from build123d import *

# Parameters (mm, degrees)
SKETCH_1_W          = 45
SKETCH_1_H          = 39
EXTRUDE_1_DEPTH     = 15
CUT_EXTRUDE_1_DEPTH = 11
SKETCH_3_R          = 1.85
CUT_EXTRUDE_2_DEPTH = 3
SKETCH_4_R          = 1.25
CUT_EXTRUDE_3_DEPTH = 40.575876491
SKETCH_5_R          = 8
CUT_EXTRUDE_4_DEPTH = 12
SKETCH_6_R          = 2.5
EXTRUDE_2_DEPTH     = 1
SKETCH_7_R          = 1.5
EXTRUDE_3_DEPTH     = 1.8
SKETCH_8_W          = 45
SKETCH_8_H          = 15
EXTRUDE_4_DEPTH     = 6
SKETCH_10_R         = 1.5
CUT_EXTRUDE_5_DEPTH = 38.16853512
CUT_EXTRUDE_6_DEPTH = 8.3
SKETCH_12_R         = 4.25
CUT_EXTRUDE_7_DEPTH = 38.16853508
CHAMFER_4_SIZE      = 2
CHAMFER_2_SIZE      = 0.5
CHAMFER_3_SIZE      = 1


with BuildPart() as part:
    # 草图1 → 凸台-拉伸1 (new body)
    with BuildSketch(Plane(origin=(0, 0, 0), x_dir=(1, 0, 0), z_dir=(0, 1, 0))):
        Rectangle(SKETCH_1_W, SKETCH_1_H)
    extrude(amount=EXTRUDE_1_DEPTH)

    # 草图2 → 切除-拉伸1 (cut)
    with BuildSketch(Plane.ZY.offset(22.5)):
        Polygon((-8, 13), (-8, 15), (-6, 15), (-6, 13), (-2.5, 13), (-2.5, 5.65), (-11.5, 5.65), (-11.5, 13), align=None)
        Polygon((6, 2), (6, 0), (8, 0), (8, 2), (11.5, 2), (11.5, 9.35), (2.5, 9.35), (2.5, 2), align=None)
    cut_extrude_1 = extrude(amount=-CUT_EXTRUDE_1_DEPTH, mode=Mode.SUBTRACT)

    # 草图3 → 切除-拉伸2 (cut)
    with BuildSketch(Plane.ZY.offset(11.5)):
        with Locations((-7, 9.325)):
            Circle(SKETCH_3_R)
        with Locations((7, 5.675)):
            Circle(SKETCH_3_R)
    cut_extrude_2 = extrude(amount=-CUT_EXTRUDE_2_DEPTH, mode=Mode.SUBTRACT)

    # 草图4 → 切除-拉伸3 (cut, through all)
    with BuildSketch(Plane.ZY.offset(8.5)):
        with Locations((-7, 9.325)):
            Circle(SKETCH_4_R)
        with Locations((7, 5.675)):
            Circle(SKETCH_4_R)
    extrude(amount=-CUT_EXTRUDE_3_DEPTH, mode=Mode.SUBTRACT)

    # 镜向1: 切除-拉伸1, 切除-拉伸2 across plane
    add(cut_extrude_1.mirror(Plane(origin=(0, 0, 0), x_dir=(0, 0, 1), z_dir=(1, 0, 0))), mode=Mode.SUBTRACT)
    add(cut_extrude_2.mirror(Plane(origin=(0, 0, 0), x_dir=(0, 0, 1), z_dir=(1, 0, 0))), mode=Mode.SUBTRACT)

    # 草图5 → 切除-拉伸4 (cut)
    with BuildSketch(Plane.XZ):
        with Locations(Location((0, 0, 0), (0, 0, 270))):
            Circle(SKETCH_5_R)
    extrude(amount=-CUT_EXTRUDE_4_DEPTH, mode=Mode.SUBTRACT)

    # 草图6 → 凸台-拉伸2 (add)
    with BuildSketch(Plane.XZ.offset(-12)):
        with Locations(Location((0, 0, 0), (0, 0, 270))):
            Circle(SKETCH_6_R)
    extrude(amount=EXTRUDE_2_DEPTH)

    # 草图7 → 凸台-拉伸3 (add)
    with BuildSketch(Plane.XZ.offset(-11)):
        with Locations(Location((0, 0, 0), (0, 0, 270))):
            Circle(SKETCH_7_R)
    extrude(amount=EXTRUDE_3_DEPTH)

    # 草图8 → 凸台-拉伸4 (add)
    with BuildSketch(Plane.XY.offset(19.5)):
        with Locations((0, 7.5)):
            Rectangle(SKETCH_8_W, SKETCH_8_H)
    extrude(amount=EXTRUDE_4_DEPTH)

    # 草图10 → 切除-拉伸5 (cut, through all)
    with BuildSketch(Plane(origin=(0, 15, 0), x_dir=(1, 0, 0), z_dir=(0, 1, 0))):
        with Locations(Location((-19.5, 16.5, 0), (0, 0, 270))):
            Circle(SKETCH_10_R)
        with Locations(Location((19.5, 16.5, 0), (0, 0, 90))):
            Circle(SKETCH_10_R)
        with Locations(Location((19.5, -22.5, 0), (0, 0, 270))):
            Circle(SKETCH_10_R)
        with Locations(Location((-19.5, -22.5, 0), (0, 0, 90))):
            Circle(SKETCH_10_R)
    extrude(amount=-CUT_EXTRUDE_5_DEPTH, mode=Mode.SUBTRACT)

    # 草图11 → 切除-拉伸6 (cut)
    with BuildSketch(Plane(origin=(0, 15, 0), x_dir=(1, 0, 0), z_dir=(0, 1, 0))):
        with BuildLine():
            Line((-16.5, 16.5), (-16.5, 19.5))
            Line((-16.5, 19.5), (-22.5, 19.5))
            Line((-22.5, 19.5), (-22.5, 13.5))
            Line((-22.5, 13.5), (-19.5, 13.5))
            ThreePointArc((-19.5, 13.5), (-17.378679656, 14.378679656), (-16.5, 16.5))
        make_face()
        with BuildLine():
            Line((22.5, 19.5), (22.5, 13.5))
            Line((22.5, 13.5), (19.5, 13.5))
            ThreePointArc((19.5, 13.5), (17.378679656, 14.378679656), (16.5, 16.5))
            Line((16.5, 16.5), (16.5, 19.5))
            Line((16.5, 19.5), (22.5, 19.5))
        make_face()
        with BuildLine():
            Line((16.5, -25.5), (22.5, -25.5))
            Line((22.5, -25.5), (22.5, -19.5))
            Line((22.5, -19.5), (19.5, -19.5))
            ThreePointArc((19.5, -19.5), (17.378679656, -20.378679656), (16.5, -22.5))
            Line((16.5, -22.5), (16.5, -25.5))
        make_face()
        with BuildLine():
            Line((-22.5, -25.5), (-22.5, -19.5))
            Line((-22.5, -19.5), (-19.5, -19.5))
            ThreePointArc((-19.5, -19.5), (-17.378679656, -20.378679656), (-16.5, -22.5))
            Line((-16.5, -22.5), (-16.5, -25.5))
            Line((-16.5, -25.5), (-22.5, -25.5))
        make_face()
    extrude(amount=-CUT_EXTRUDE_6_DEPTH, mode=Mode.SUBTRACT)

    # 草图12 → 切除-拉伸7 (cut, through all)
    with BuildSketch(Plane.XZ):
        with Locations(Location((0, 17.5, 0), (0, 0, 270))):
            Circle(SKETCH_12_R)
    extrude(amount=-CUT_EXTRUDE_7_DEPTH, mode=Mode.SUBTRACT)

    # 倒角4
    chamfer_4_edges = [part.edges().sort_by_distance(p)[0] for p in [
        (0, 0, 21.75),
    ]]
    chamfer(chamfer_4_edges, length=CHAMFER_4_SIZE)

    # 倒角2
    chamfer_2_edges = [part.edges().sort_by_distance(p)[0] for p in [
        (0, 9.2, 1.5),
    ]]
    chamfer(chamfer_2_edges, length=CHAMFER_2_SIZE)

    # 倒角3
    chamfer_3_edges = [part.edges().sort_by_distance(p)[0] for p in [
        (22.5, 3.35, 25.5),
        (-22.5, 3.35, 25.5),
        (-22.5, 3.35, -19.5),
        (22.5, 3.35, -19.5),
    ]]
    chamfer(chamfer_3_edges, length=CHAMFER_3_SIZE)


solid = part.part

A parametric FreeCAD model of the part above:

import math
import FreeCAD as App
import Part
import Sketcher

V = App.Vector


def edges_at(feature, points):
    """Names of the edges that pass closest to the given points."""
    edges = feature.Shape.Edges
    near = lambda p: min(range(len(edges)), key=lambda i: edges[i].distToShape(Part.Vertex(*p))[0])
    return sorted({f"Edge{near(p) + 1}" for p in points})

doc = App.newDocument("Part")
body = doc.addObject("PartDesign::Body", "Body")

# Sketch on XZ plane
sketch1 = body.newObject("Sketcher::SketchObject", "Sketch")
sketch1.AttachmentSupport = (doc.getObject("XZ_Plane"), [""])
sketch1.MapMode = "FlatFace"
sketch1.addGeometry(Part.LineSegment(V(-22, -20, 0), V(-22, 20, 0)), False)
sketch1.addGeometry(Part.LineSegment(V(-22, 20, 0), V(22, 20, 0)), False)
sketch1.addGeometry(Part.LineSegment(V(22, 20, 0), V(22, -20, 0)), False)
sketch1.addGeometry(Part.LineSegment(V(22, -20, 0), V(-22, -20, 0)), False)
sketch1.addConstraint(Sketcher.Constraint("Coincident", 0, 2, 1, 1))
sketch1.addConstraint(Sketcher.Constraint("Coincident", 1, 2, 2, 1))
sketch1.addConstraint(Sketcher.Constraint("Coincident", 2, 2, 3, 1))
sketch1.addConstraint(Sketcher.Constraint("Coincident", 3, 2, 0, 1))
sketch1.addConstraint(Sketcher.Constraint("Vertical", 0))
sketch1.addConstraint(Sketcher.Constraint("Horizontal", 1))
sketch1.addConstraint(Sketcher.Constraint("Vertical", 2))
sketch1.addConstraint(Sketcher.Constraint("Horizontal", 3))
sketch1.addConstraint(Sketcher.Constraint("Symmetric", 0, 2, 2, 2, -1, 1))
sketch1.addConstraint(Sketcher.Constraint("DistanceX", 1, 1, 1, 2, 45.0))
sketch1.addConstraint(Sketcher.Constraint("DistanceY", 0, 1, 0, 2, 39.0))
pad1 = body.newObject("PartDesign::Pad", "Pad")
pad1.Profile = sketch1
pad1.Length = 15
pad1.Reversed = True

# Sketch on YZ plane
sketch2 = body.newObject("Sketcher::SketchObject", "Sketch001")
sketch2.AttachmentSupport = (doc.getObject("YZ_Plane"), [""])
sketch2.MapMode = "FlatFace"
sketch2.AttachmentOffset = App.Placement(V(0, 0, -22.5), App.Rotation())
sketch2.addGeometry(Part.LineSegment(V(15, -8, 0), V(13, -8, 0)), False)
sketch2.addGeometry(Part.LineSegment(V(13, -8, 0), V(13, -11.5, 0)), False)
sketch2.addGeometry(Part.LineSegment(V(13, -11.5, 0), V(5.7, -11.5, 0)), False)
sketch2.addGeometry(Part.LineSegment(V(5.7, -11.5, 0), V(5.7, -2.5, 0)), False)
sketch2.addGeometry(Part.LineSegment(V(5.7, -2.5, 0), V(13, -2.5, 0)), False)
sketch2.addGeometry(Part.LineSegment(V(13, -2.5, 0), V(13, -6, 0)), False)
sketch2.addGeometry(Part.LineSegment(V(13, -6, 0), V(15, -6, 0)), False)
sketch2.addGeometry(Part.LineSegment(V(15, -6, 0), V(15, -8, 0)), False)
sketch2.addGeometry(Part.LineSegment(V(2, 6, 0), V(0, 6, 0)), False)
sketch2.addGeometry(Part.LineSegment(V(0, 6, 0), V(0, 8, 0)), False)
sketch2.addGeometry(Part.LineSegment(V(0, 8, 0), V(2, 8, 0)), False)
sketch2.addGeometry(Part.LineSegment(V(2, 8, 0), V(2, 11.5, 0)), False)
sketch2.addGeometry(Part.LineSegment(V(2, 11.5, 0), V(9.3, 11.5, 0)), False)
sketch2.addGeometry(Part.LineSegment(V(9.3, 11.5, 0), V(9.3, 2.5, 0)), False)
sketch2.addGeometry(Part.LineSegment(V(9.3, 2.5, 0), V(2, 2.5, 0)), False)
sketch2.addGeometry(Part.LineSegment(V(2, 2.5, 0), V(2, 6, 0)), False)
sketch2.addConstraint(Sketcher.Constraint("Coincident", 0, 2, 1, 1))
sketch2.addConstraint(Sketcher.Constraint("Coincident", 1, 2, 2, 1))
sketch2.addConstraint(Sketcher.Constraint("Coincident", 2, 2, 3, 1))
sketch2.addConstraint(Sketcher.Constraint("Coincident", 3, 2, 4, 1))
sketch2.addConstraint(Sketcher.Constraint("Coincident", 4, 2, 5, 1))
sketch2.addConstraint(Sketcher.Constraint("Coincident", 5, 2, 6, 1))
sketch2.addConstraint(Sketcher.Constraint("Coincident", 6, 2, 7, 1))
sketch2.addConstraint(Sketcher.Constraint("Coincident", 7, 2, 0, 1))
sketch2.addConstraint(Sketcher.Constraint("Coincident", 8, 2, 9, 1))
sketch2.addConstraint(Sketcher.Constraint("Coincident", 9, 2, 10, 1))
sketch2.addConstraint(Sketcher.Constraint("Coincident", 10, 2, 11, 1))
sketch2.addConstraint(Sketcher.Constraint("Coincident", 11, 2, 12, 1))
sketch2.addConstraint(Sketcher.Constraint("Coincident", 12, 2, 13, 1))
sketch2.addConstraint(Sketcher.Constraint("Coincident", 13, 2, 14, 1))
sketch2.addConstraint(Sketcher.Constraint("Coincident", 14, 2, 15, 1))
sketch2.addConstraint(Sketcher.Constraint("Coincident", 15, 2, 8, 1))
sketch2.addConstraint(Sketcher.Constraint("Horizontal", 0))
sketch2.addConstraint(Sketcher.Constraint("Vertical", 1))
sketch2.addConstraint(Sketcher.Constraint("Horizontal", 2))
sketch2.addConstraint(Sketcher.Constraint("Vertical", 3))
sketch2.addConstraint(Sketcher.Constraint("Horizontal", 4))
sketch2.addConstraint(Sketcher.Constraint("Vertical", 5))
sketch2.addConstraint(Sketcher.Constraint("Horizontal", 6))
sketch2.addConstraint(Sketcher.Constraint("Vertical", 7))
sketch2.addConstraint(Sketcher.Constraint("Horizontal", 8))
sketch2.addConstraint(Sketcher.Constraint("Vertical", 9))
sketch2.addConstraint(Sketcher.Constraint("Horizontal", 10))
sketch2.addConstraint(Sketcher.Constraint("Vertical", 11))
sketch2.addConstraint(Sketcher.Constraint("Horizontal", 12))
sketch2.addConstraint(Sketcher.Constraint("Vertical", 13))
sketch2.addConstraint(Sketcher.Constraint("Horizontal", 14))
sketch2.addConstraint(Sketcher.Constraint("Vertical", 15))
sketch2.addConstraint(Sketcher.Constraint("PointOnObject", 8, 2, -2))
sketch2.addConstraint(Sketcher.Constraint("Vertical", 1, 2, 4, 2))
sketch2.addConstraint(Sketcher.Constraint("Vertical", 11, 2, 14, 2))
sketch2.addConstraint(Sketcher.Constraint("Equal", 6, 8))
sketch2.addConstraint(Sketcher.Constraint("Equal", 4, 12))
sketch2.addConstraint(Sketcher.Constraint("Equal", 1, 5))
sketch2.addConstraint(Sketcher.Constraint("Equal", 10, 7))
sketch2.addConstraint(Sketcher.Constraint("Equal", 7, 9))
sketch2.addConstraint(Sketcher.Constraint("Equal", 5, 11))
sketch2.addConstraint(Sketcher.Constraint("Equal", 3, 13))
sketch2.addConstraint(Sketcher.Constraint("DistanceX", 0, 2, 0, 1, 2.0))
sketch2.addConstraint(Sketcher.Constraint("DistanceY", 3, 1, 3, 2, 9.0))
sketch2.addConstraint(Sketcher.Constraint("DistanceX", -1, 1, 0, 2, 13.0))
sketch2.addConstraint(Sketcher.Constraint("DistanceY", 0, 2, -1, 1, 8.0))
sketch2.addConstraint(Sketcher.Constraint("DistanceY", -1, 1, 8, 2, 6.0))
sketch2.addConstraint(Sketcher.Constraint("DistanceX", 2, 2, 2, 1, 7.35))
pocket1 = body.newObject("PartDesign::Pocket", "Pocket")
pocket1.Profile = sketch2
pocket1.Length = 11
pocket1.Reversed = True

# Sketch on YZ plane
sketch3 = body.newObject("Sketcher::SketchObject", "Sketch002")
sketch3.AttachmentSupport = (doc.getObject("YZ_Plane"), [""])
sketch3.MapMode = "FlatFace"
sketch3.AttachmentOffset = App.Placement(V(0, 0, -11.5), App.Rotation())
sketch3.addGeometry(Part.Circle(V(9.3, -7, 0), V(0, 0, 1), 1.9), False)
sketch3.addGeometry(Part.Circle(V(5.7, 7, 0), V(0, 0, 1), 1.9), False)
sketch3.addConstraint(Sketcher.Constraint("Equal", 0, 1))
sketch3.addConstraint(Sketcher.Constraint("Diameter", 0, 3.7))
sketch3.addConstraint(Sketcher.Constraint("DistanceY", 0, 3, -1, 1, 7.0))
sketch3.addConstraint(Sketcher.Constraint("DistanceY", -1, 1, 1, 3, 7.0))
sketch3.addConstraint(Sketcher.Constraint("DistanceX", 1, 3, 0, 3, 3.65))
sketch3.addConstraint(Sketcher.Constraint("DistanceX", -1, 1, 0, 3, 9.325))
pocket2 = body.newObject("PartDesign::Pocket", "Pocket001")
pocket2.Profile = sketch3
pocket2.Length = 3
pocket2.Reversed = True

# Sketch on YZ plane
sketch4 = body.newObject("Sketcher::SketchObject", "Sketch003")
sketch4.AttachmentSupport = (doc.getObject("YZ_Plane"), [""])
sketch4.MapMode = "FlatFace"
sketch4.AttachmentOffset = App.Placement(V(0, 0, -8.5), App.Rotation())
sketch4.addGeometry(Part.Circle(V(9.3, -7, 0), V(0, 0, 1), 1.2), False)
sketch4.addGeometry(Part.Circle(V(5.7, 7, 0), V(0, 0, 1), 1.2), False)
sketch4.addConstraint(Sketcher.Constraint("Equal", 0, 1))
sketch4.addConstraint(Sketcher.Constraint("Diameter", 0, 2.5))
sketch4.addConstraint(Sketcher.Constraint("DistanceY", 0, 3, -1, 1, 7.0))
sketch4.addConstraint(Sketcher.Constraint("DistanceY", -1, 1, 1, 3, 7.0))
sketch4.addConstraint(Sketcher.Constraint("DistanceX", 1, 3, 0, 3, 3.65))
sketch4.addConstraint(Sketcher.Constraint("DistanceX", -1, 1, 0, 3, 9.325))
pocket3 = body.newObject("PartDesign::Pocket", "Pocket002")
pocket3.Profile = sketch4
pocket3.Type = "ThroughAll"
pocket3.Reversed = True
doc.recompute()

mirrored = body.newObject("PartDesign::Mirrored", "Mirrored")
mirrored.Originals = [pocket1, pocket2]
mirrored.MirrorPlane = (doc.getObject("YZ_Plane"), [""])
body.Tip = mirrored

# Sketch on XZ plane
sketch5 = body.newObject("Sketcher::SketchObject", "Sketch004")
sketch5.AttachmentSupport = (doc.getObject("XZ_Plane"), [""])
sketch5.MapMode = "FlatFace"
sketch5.addGeometry(Part.Circle(V(0, 0, 0), V(0, 0, 1), 8), False)
sketch5.addConstraint(Sketcher.Constraint("Coincident", 0, 3, -1, 1))
sketch5.addConstraint(Sketcher.Constraint("Diameter", 0, 16.0))
pocket4 = body.newObject("PartDesign::Pocket", "Pocket003")
pocket4.Profile = sketch5
pocket4.Length = 12

# Sketch on XZ plane
sketch6 = body.newObject("Sketcher::SketchObject", "Sketch005")
sketch6.AttachmentSupport = (doc.getObject("XZ_Plane"), [""])
sketch6.MapMode = "FlatFace"
sketch6.AttachmentOffset = App.Placement(V(0, 0, -12), App.Rotation())
sketch6.addGeometry(Part.Circle(V(0, 0, 0), V(0, 0, 1), 2.5), False)
sketch6.addConstraint(Sketcher.Constraint("Coincident", 0, 3, -1, 1))
sketch6.addConstraint(Sketcher.Constraint("Diameter", 0, 5.0))
pad2 = body.newObject("PartDesign::Pad", "Pad001")
pad2.Profile = sketch6
pad2.Length = 1

# Sketch on XZ plane
sketch7 = body.newObject("Sketcher::SketchObject", "Sketch006")
sketch7.AttachmentSupport = (doc.getObject("XZ_Plane"), [""])
sketch7.MapMode = "FlatFace"
sketch7.AttachmentOffset = App.Placement(V(0, 0, -11), App.Rotation())
sketch7.addGeometry(Part.Circle(V(0, 0, 0), V(0, 0, 1), 1.5), False)
sketch7.addConstraint(Sketcher.Constraint("Coincident", 0, 3, -1, 1))
sketch7.addConstraint(Sketcher.Constraint("Diameter", 0, 3.0))
pad3 = body.newObject("PartDesign::Pad", "Pad002")
pad3.Profile = sketch7
pad3.Length = 1.8

# Sketch on XY plane
sketch8 = body.newObject("Sketcher::SketchObject", "Sketch007")
sketch8.AttachmentSupport = (doc.getObject("XY_Plane"), [""])
sketch8.MapMode = "FlatFace"
sketch8.AttachmentOffset = App.Placement(V(0, 0, 19.5), App.Rotation())
sketch8.addGeometry(Part.LineSegment(V(-22, 15, 0), V(-22, 0, 0)), False)
sketch8.addGeometry(Part.LineSegment(V(-22, 0, 0), V(22, 0, 0)), False)
sketch8.addGeometry(Part.LineSegment(V(22, 0, 0), V(22, 15, 0)), False)
sketch8.addGeometry(Part.LineSegment(V(22, 15, 0), V(-22, 15, 0)), False)
sketch8.addConstraint(Sketcher.Constraint("Coincident", 0, 2, 1, 1))
sketch8.addConstraint(Sketcher.Constraint("Coincident", 1, 2, 2, 1))
sketch8.addConstraint(Sketcher.Constraint("Coincident", 2, 2, 3, 1))
sketch8.addConstraint(Sketcher.Constraint("Coincident", 3, 2, 0, 1))
sketch8.addConstraint(Sketcher.Constraint("Vertical", 0))
sketch8.addConstraint(Sketcher.Constraint("Horizontal", 1))
sketch8.addConstraint(Sketcher.Constraint("Vertical", 2))
sketch8.addConstraint(Sketcher.Constraint("Horizontal", 3))
sketch8.addConstraint(Sketcher.Constraint("Symmetric", 0, 2, 1, 2, -1, 1))
sketch8.addConstraint(Sketcher.Constraint("DistanceX", 1, 1, 1, 2, 45.0))
sketch8.addConstraint(Sketcher.Constraint("DistanceY", 0, 2, 0, 1, 15.0))
pad4 = body.newObject("PartDesign::Pad", "Pad003")
pad4.Profile = sketch8
pad4.Length = 6

# Sketch on XZ plane
sketch9 = body.newObject("Sketcher::SketchObject", "Sketch008")
sketch9.AttachmentSupport = (doc.getObject("XZ_Plane"), [""])
sketch9.MapMode = "FlatFace"
sketch9.AttachmentOffset = App.Placement(V(0, 0, -15), App.Rotation())
sketch9.addGeometry(Part.Circle(V(-19.5, -16.5, 0), V(0, 0, 1), 1.5), False)
sketch9.addGeometry(Part.Circle(V(19.5, -16.5, 0), V(0, 0, 1), 1.5), False)
sketch9.addGeometry(Part.Circle(V(19.5, 22.5, 0), V(0, 0, 1), 1.5), False)
sketch9.addGeometry(Part.Circle(V(-19.5, 22.5, 0), V(0, 0, 1), 1.5), False)
sketch9.addConstraint(Sketcher.Constraint("Equal", 0, 1))
sketch9.addConstraint(Sketcher.Constraint("Equal", 1, 2))
sketch9.addConstraint(Sketcher.Constraint("Equal", 2, 3))
sketch9.addConstraint(Sketcher.Constraint("Symmetric", 0, 3, 1, 3, -2))
sketch9.addConstraint(Sketcher.Constraint("Symmetric", 2, 3, 3, 3, -2))
sketch9.addConstraint(Sketcher.Constraint("Vertical", 1, 3, 2, 3))
sketch9.addConstraint(Sketcher.Constraint("Diameter", 0, 3.0))
sketch9.addConstraint(Sketcher.Constraint("DistanceX", 0, 3, 1, 3, 39.0))
sketch9.addConstraint(Sketcher.Constraint("DistanceY", 1, 3, 2, 3, 39.0))
sketch9.addConstraint(Sketcher.Constraint("DistanceY", 0, 3, -1, 1, 16.5))
pocket5 = body.newObject("PartDesign::Pocket", "Pocket004")
pocket5.Profile = sketch9
pocket5.Type = "ThroughAll"
pocket5.Reversed = True

# Sketch on XZ plane
sketch10 = body.newObject("Sketcher::SketchObject", "Sketch009")
sketch10.AttachmentSupport = (doc.getObject("XZ_Plane"), [""])
sketch10.MapMode = "FlatFace"
sketch10.AttachmentOffset = App.Placement(V(0, 0, -15), App.Rotation())
sketch10.addGeometry(Part.LineSegment(V(-16.5, -16.5, 0), V(-16.5, -19.5, 0)), False)
sketch10.addGeometry(Part.LineSegment(V(-16.5, -19.5, 0), V(-22.5, -19.5, 0)), False)
sketch10.addGeometry(Part.LineSegment(V(-22.5, -19.5, 0), V(-22.5, -13.5, 0)), False)
sketch10.addGeometry(Part.LineSegment(V(-22.5, -13.5, 0), V(-19.5, -13.5, 0)), False)
sketch10.addGeometry(Part.ArcOfCircle(Part.Circle(V(-19.5, -16.5, 0), V(0, 0, 1), 3), math.radians(0), math.radians(90)), False)
sketch10.addGeometry(Part.LineSegment(V(22.5, -13.5, 0), V(22.5, -19.5, 0)), False)
sketch10.addGeometry(Part.LineSegment(V(22.5, -19.5, 0), V(16.5, -19.5, 0)), False)
sketch10.addGeometry(Part.LineSegment(V(16.5, -19.5, 0), V(16.5, -16.5, 0)), False)
sketch10.addGeometry(Part.ArcOfCircle(Part.Circle(V(19.5, -16.5, 0), V(0, 0, 1), 3), math.radians(90), math.radians(180)), False)
sketch10.addGeometry(Part.LineSegment(V(19.5, -13.5, 0), V(22.5, -13.5, 0)), False)
sketch10.addGeometry(Part.LineSegment(V(16.5, 25.5, 0), V(22.5, 25.5, 0)), False)
sketch10.addGeometry(Part.LineSegment(V(22.5, 25.5, 0), V(22.5, 19.5, 0)), False)
sketch10.addGeometry(Part.LineSegment(V(22.5, 19.5, 0), V(19.5, 19.5, 0)), False)
sketch10.addGeometry(Part.ArcOfCircle(Part.Circle(V(19.5, 22.5, 0), V(0, 0, 1), 3), math.radians(180), math.radians(270)), False)
sketch10.addGeometry(Part.LineSegment(V(16.5, 22.5, 0), V(16.5, 25.5, 0)), False)
sketch10.addGeometry(Part.LineSegment(V(-22.5, 19.5, 0), V(-22.5, 25.5, 0)), False)
sketch10.addGeometry(Part.LineSegment(V(-22.5, 25.5, 0), V(-16.5, 25.5, 0)), False)
sketch10.addGeometry(Part.LineSegment(V(-16.5, 25.5, 0), V(-16.5, 22.5, 0)), False)
sketch10.addGeometry(Part.ArcOfCircle(Part.Circle(V(-19.5, 22.5, 0), V(0, 0, 1), 3), math.radians(-90), math.radians(0)), False)
sketch10.addGeometry(Part.LineSegment(V(-19.5, 19.5, 0), V(-22.5, 19.5, 0)), False)
sketch10.addConstraint(Sketcher.Constraint("Coincident", 0, 2, 1, 1))
sketch10.addConstraint(Sketcher.Constraint("Coincident", 1, 2, 2, 1))
sketch10.addConstraint(Sketcher.Constraint("Coincident", 2, 2, 3, 1))
sketch10.addConstraint(Sketcher.Constraint("Tangent", 3, 2, 4, 2))
sketch10.addConstraint(Sketcher.Constraint("Tangent", 4, 1, 0, 1))
sketch10.addConstraint(Sketcher.Constraint("Coincident", 5, 2, 6, 1))
sketch10.addConstraint(Sketcher.Constraint("Coincident", 6, 2, 7, 1))
sketch10.addConstraint(Sketcher.Constraint("Tangent", 7, 2, 8, 2))
sketch10.addConstraint(Sketcher.Constraint("Tangent", 8, 1, 9, 1))
sketch10.addConstraint(Sketcher.Constraint("Coincident", 9, 2, 5, 1))
sketch10.addConstraint(Sketcher.Constraint("Coincident", 10, 2, 11, 1))
sketch10.addConstraint(Sketcher.Constraint("Coincident", 11, 2, 12, 1))
sketch10.addConstraint(Sketcher.Constraint("Tangent", 12, 2, 13, 2))
sketch10.addConstraint(Sketcher.Constraint("Tangent", 13, 1, 14, 1))
sketch10.addConstraint(Sketcher.Constraint("Coincident", 14, 2, 10, 1))
sketch10.addConstraint(Sketcher.Constraint("Coincident", 15, 2, 16, 1))
sketch10.addConstraint(Sketcher.Constraint("Coincident", 16, 2, 17, 1))
sketch10.addConstraint(Sketcher.Constraint("Tangent", 17, 2, 18, 2))
sketch10.addConstraint(Sketcher.Constraint("Tangent", 18, 1, 19, 1))
sketch10.addConstraint(Sketcher.Constraint("Coincident", 19, 2, 15, 1))
sketch10.addConstraint(Sketcher.Constraint("Vertical", 0))
sketch10.addConstraint(Sketcher.Constraint("Horizontal", 1))
sketch10.addConstraint(Sketcher.Constraint("Vertical", 2))
sketch10.addConstraint(Sketcher.Constraint("Horizontal", 3))
sketch10.addConstraint(Sketcher.Constraint("Vertical", 5))
sketch10.addConstraint(Sketcher.Constraint("Horizontal", 6))
sketch10.addConstraint(Sketcher.Constraint("Vertical", 7))
sketch10.addConstraint(Sketcher.Constraint("Horizontal", 9))
sketch10.addConstraint(Sketcher.Constraint("Horizontal", 10))
sketch10.addConstraint(Sketcher.Constraint("Vertical", 11))
sketch10.addConstraint(Sketcher.Constraint("Horizontal", 12))
sketch10.addConstraint(Sketcher.Constraint("Vertical", 14))
sketch10.addConstraint(Sketcher.Constraint("Vertical", 15))
sketch10.addConstraint(Sketcher.Constraint("Horizontal", 16))
sketch10.addConstraint(Sketcher.Constraint("Vertical", 17))
sketch10.addConstraint(Sketcher.Constraint("Horizontal", 19))
sketch10.addConstraint(Sketcher.Constraint("Equal", 4, 8))
sketch10.addConstraint(Sketcher.Constraint("Equal", 8, 13))
sketch10.addConstraint(Sketcher.Constraint("Equal", 13, 18))
sketch10.addConstraint(Sketcher.Constraint("Symmetric", 1, 2, 11, 2, -1, 1))
sketch10.addConstraint(Sketcher.Constraint("Symmetric", 5, 2, 19, 2, -1, 1))
sketch10.addConstraint(Sketcher.Constraint("Symmetric", 4, 3, 8, 3, -2))
sketch10.addConstraint(Sketcher.Constraint("Symmetric", 13, 3, 18, 3, -2))
sketch10.addConstraint(Sketcher.Constraint("Symmetric", 10, 2, 15, 2, -2))
sketch10.addConstraint(Sketcher.Constraint("Vertical", 8, 3, 13, 3))
sketch10.addConstraint(Sketcher.Constraint("Equal", 19, 0))
sketch10.addConstraint(Sketcher.Constraint("Equal", 5, 11))
sketch10.addConstraint(Sketcher.Constraint("Radius", 4, 3.0))
sketch10.addConstraint(Sketcher.Constraint("DistanceX", 1, 2, 1, 1, 6.0))
sketch10.addConstraint(Sketcher.Constraint("DistanceX", 4, 3, 8, 3, 39.0))
sketch10.addConstraint(Sketcher.Constraint("DistanceY", 8, 3, 13, 3, 39.0))
pocket6 = body.newObject("PartDesign::Pocket", "Pocket005")
pocket6.Profile = sketch10
pocket6.Length = 8.3
pocket6.Reversed = True

# Sketch on XZ plane
sketch11 = body.newObject("Sketcher::SketchObject", "Sketch010")
sketch11.AttachmentSupport = (doc.getObject("XZ_Plane"), [""])
sketch11.MapMode = "FlatFace"
sketch11.addGeometry(Part.Circle(V(0, 17.5, 0), V(0, 0, 1), 4.2), False)
sketch11.addConstraint(Sketcher.Constraint("PointOnObject", 0, 3, -2))
sketch11.addConstraint(Sketcher.Constraint("Diameter", 0, 8.5))
sketch11.addConstraint(Sketcher.Constraint("DistanceY", -1, 1, 0, 3, 17.5))
pocket7 = body.newObject("PartDesign::Pocket", "Pocket006")
pocket7.Profile = sketch11
pocket7.Type = "ThroughAll"
doc.recompute()

chamfer = body.newObject("PartDesign::Chamfer", "Chamfer")
chamfer.Base = (pocket7, edges_at(pocket7, [(0, 0, 21.75)]))
chamfer.Size = 2
doc.recompute()

chamfer2 = body.newObject("PartDesign::Chamfer", "Chamfer001")
chamfer2.Base = (chamfer, edges_at(chamfer, [(0, 9.2, 1.5)]))
chamfer2.Size = 0.5
doc.recompute()

chamfer3 = body.newObject("PartDesign::Chamfer", "Chamfer002")
chamfer3.Base = (chamfer2, edges_at(chamfer2, [
    (22.5, 3.35, 25.5),
    (-22.5, 3.35, 25.5),
    (-22.5, 3.35, -19.5),
    (22.5, 3.35, -19.5),
]))
chamfer3.Size = 1

doc.recompute()
